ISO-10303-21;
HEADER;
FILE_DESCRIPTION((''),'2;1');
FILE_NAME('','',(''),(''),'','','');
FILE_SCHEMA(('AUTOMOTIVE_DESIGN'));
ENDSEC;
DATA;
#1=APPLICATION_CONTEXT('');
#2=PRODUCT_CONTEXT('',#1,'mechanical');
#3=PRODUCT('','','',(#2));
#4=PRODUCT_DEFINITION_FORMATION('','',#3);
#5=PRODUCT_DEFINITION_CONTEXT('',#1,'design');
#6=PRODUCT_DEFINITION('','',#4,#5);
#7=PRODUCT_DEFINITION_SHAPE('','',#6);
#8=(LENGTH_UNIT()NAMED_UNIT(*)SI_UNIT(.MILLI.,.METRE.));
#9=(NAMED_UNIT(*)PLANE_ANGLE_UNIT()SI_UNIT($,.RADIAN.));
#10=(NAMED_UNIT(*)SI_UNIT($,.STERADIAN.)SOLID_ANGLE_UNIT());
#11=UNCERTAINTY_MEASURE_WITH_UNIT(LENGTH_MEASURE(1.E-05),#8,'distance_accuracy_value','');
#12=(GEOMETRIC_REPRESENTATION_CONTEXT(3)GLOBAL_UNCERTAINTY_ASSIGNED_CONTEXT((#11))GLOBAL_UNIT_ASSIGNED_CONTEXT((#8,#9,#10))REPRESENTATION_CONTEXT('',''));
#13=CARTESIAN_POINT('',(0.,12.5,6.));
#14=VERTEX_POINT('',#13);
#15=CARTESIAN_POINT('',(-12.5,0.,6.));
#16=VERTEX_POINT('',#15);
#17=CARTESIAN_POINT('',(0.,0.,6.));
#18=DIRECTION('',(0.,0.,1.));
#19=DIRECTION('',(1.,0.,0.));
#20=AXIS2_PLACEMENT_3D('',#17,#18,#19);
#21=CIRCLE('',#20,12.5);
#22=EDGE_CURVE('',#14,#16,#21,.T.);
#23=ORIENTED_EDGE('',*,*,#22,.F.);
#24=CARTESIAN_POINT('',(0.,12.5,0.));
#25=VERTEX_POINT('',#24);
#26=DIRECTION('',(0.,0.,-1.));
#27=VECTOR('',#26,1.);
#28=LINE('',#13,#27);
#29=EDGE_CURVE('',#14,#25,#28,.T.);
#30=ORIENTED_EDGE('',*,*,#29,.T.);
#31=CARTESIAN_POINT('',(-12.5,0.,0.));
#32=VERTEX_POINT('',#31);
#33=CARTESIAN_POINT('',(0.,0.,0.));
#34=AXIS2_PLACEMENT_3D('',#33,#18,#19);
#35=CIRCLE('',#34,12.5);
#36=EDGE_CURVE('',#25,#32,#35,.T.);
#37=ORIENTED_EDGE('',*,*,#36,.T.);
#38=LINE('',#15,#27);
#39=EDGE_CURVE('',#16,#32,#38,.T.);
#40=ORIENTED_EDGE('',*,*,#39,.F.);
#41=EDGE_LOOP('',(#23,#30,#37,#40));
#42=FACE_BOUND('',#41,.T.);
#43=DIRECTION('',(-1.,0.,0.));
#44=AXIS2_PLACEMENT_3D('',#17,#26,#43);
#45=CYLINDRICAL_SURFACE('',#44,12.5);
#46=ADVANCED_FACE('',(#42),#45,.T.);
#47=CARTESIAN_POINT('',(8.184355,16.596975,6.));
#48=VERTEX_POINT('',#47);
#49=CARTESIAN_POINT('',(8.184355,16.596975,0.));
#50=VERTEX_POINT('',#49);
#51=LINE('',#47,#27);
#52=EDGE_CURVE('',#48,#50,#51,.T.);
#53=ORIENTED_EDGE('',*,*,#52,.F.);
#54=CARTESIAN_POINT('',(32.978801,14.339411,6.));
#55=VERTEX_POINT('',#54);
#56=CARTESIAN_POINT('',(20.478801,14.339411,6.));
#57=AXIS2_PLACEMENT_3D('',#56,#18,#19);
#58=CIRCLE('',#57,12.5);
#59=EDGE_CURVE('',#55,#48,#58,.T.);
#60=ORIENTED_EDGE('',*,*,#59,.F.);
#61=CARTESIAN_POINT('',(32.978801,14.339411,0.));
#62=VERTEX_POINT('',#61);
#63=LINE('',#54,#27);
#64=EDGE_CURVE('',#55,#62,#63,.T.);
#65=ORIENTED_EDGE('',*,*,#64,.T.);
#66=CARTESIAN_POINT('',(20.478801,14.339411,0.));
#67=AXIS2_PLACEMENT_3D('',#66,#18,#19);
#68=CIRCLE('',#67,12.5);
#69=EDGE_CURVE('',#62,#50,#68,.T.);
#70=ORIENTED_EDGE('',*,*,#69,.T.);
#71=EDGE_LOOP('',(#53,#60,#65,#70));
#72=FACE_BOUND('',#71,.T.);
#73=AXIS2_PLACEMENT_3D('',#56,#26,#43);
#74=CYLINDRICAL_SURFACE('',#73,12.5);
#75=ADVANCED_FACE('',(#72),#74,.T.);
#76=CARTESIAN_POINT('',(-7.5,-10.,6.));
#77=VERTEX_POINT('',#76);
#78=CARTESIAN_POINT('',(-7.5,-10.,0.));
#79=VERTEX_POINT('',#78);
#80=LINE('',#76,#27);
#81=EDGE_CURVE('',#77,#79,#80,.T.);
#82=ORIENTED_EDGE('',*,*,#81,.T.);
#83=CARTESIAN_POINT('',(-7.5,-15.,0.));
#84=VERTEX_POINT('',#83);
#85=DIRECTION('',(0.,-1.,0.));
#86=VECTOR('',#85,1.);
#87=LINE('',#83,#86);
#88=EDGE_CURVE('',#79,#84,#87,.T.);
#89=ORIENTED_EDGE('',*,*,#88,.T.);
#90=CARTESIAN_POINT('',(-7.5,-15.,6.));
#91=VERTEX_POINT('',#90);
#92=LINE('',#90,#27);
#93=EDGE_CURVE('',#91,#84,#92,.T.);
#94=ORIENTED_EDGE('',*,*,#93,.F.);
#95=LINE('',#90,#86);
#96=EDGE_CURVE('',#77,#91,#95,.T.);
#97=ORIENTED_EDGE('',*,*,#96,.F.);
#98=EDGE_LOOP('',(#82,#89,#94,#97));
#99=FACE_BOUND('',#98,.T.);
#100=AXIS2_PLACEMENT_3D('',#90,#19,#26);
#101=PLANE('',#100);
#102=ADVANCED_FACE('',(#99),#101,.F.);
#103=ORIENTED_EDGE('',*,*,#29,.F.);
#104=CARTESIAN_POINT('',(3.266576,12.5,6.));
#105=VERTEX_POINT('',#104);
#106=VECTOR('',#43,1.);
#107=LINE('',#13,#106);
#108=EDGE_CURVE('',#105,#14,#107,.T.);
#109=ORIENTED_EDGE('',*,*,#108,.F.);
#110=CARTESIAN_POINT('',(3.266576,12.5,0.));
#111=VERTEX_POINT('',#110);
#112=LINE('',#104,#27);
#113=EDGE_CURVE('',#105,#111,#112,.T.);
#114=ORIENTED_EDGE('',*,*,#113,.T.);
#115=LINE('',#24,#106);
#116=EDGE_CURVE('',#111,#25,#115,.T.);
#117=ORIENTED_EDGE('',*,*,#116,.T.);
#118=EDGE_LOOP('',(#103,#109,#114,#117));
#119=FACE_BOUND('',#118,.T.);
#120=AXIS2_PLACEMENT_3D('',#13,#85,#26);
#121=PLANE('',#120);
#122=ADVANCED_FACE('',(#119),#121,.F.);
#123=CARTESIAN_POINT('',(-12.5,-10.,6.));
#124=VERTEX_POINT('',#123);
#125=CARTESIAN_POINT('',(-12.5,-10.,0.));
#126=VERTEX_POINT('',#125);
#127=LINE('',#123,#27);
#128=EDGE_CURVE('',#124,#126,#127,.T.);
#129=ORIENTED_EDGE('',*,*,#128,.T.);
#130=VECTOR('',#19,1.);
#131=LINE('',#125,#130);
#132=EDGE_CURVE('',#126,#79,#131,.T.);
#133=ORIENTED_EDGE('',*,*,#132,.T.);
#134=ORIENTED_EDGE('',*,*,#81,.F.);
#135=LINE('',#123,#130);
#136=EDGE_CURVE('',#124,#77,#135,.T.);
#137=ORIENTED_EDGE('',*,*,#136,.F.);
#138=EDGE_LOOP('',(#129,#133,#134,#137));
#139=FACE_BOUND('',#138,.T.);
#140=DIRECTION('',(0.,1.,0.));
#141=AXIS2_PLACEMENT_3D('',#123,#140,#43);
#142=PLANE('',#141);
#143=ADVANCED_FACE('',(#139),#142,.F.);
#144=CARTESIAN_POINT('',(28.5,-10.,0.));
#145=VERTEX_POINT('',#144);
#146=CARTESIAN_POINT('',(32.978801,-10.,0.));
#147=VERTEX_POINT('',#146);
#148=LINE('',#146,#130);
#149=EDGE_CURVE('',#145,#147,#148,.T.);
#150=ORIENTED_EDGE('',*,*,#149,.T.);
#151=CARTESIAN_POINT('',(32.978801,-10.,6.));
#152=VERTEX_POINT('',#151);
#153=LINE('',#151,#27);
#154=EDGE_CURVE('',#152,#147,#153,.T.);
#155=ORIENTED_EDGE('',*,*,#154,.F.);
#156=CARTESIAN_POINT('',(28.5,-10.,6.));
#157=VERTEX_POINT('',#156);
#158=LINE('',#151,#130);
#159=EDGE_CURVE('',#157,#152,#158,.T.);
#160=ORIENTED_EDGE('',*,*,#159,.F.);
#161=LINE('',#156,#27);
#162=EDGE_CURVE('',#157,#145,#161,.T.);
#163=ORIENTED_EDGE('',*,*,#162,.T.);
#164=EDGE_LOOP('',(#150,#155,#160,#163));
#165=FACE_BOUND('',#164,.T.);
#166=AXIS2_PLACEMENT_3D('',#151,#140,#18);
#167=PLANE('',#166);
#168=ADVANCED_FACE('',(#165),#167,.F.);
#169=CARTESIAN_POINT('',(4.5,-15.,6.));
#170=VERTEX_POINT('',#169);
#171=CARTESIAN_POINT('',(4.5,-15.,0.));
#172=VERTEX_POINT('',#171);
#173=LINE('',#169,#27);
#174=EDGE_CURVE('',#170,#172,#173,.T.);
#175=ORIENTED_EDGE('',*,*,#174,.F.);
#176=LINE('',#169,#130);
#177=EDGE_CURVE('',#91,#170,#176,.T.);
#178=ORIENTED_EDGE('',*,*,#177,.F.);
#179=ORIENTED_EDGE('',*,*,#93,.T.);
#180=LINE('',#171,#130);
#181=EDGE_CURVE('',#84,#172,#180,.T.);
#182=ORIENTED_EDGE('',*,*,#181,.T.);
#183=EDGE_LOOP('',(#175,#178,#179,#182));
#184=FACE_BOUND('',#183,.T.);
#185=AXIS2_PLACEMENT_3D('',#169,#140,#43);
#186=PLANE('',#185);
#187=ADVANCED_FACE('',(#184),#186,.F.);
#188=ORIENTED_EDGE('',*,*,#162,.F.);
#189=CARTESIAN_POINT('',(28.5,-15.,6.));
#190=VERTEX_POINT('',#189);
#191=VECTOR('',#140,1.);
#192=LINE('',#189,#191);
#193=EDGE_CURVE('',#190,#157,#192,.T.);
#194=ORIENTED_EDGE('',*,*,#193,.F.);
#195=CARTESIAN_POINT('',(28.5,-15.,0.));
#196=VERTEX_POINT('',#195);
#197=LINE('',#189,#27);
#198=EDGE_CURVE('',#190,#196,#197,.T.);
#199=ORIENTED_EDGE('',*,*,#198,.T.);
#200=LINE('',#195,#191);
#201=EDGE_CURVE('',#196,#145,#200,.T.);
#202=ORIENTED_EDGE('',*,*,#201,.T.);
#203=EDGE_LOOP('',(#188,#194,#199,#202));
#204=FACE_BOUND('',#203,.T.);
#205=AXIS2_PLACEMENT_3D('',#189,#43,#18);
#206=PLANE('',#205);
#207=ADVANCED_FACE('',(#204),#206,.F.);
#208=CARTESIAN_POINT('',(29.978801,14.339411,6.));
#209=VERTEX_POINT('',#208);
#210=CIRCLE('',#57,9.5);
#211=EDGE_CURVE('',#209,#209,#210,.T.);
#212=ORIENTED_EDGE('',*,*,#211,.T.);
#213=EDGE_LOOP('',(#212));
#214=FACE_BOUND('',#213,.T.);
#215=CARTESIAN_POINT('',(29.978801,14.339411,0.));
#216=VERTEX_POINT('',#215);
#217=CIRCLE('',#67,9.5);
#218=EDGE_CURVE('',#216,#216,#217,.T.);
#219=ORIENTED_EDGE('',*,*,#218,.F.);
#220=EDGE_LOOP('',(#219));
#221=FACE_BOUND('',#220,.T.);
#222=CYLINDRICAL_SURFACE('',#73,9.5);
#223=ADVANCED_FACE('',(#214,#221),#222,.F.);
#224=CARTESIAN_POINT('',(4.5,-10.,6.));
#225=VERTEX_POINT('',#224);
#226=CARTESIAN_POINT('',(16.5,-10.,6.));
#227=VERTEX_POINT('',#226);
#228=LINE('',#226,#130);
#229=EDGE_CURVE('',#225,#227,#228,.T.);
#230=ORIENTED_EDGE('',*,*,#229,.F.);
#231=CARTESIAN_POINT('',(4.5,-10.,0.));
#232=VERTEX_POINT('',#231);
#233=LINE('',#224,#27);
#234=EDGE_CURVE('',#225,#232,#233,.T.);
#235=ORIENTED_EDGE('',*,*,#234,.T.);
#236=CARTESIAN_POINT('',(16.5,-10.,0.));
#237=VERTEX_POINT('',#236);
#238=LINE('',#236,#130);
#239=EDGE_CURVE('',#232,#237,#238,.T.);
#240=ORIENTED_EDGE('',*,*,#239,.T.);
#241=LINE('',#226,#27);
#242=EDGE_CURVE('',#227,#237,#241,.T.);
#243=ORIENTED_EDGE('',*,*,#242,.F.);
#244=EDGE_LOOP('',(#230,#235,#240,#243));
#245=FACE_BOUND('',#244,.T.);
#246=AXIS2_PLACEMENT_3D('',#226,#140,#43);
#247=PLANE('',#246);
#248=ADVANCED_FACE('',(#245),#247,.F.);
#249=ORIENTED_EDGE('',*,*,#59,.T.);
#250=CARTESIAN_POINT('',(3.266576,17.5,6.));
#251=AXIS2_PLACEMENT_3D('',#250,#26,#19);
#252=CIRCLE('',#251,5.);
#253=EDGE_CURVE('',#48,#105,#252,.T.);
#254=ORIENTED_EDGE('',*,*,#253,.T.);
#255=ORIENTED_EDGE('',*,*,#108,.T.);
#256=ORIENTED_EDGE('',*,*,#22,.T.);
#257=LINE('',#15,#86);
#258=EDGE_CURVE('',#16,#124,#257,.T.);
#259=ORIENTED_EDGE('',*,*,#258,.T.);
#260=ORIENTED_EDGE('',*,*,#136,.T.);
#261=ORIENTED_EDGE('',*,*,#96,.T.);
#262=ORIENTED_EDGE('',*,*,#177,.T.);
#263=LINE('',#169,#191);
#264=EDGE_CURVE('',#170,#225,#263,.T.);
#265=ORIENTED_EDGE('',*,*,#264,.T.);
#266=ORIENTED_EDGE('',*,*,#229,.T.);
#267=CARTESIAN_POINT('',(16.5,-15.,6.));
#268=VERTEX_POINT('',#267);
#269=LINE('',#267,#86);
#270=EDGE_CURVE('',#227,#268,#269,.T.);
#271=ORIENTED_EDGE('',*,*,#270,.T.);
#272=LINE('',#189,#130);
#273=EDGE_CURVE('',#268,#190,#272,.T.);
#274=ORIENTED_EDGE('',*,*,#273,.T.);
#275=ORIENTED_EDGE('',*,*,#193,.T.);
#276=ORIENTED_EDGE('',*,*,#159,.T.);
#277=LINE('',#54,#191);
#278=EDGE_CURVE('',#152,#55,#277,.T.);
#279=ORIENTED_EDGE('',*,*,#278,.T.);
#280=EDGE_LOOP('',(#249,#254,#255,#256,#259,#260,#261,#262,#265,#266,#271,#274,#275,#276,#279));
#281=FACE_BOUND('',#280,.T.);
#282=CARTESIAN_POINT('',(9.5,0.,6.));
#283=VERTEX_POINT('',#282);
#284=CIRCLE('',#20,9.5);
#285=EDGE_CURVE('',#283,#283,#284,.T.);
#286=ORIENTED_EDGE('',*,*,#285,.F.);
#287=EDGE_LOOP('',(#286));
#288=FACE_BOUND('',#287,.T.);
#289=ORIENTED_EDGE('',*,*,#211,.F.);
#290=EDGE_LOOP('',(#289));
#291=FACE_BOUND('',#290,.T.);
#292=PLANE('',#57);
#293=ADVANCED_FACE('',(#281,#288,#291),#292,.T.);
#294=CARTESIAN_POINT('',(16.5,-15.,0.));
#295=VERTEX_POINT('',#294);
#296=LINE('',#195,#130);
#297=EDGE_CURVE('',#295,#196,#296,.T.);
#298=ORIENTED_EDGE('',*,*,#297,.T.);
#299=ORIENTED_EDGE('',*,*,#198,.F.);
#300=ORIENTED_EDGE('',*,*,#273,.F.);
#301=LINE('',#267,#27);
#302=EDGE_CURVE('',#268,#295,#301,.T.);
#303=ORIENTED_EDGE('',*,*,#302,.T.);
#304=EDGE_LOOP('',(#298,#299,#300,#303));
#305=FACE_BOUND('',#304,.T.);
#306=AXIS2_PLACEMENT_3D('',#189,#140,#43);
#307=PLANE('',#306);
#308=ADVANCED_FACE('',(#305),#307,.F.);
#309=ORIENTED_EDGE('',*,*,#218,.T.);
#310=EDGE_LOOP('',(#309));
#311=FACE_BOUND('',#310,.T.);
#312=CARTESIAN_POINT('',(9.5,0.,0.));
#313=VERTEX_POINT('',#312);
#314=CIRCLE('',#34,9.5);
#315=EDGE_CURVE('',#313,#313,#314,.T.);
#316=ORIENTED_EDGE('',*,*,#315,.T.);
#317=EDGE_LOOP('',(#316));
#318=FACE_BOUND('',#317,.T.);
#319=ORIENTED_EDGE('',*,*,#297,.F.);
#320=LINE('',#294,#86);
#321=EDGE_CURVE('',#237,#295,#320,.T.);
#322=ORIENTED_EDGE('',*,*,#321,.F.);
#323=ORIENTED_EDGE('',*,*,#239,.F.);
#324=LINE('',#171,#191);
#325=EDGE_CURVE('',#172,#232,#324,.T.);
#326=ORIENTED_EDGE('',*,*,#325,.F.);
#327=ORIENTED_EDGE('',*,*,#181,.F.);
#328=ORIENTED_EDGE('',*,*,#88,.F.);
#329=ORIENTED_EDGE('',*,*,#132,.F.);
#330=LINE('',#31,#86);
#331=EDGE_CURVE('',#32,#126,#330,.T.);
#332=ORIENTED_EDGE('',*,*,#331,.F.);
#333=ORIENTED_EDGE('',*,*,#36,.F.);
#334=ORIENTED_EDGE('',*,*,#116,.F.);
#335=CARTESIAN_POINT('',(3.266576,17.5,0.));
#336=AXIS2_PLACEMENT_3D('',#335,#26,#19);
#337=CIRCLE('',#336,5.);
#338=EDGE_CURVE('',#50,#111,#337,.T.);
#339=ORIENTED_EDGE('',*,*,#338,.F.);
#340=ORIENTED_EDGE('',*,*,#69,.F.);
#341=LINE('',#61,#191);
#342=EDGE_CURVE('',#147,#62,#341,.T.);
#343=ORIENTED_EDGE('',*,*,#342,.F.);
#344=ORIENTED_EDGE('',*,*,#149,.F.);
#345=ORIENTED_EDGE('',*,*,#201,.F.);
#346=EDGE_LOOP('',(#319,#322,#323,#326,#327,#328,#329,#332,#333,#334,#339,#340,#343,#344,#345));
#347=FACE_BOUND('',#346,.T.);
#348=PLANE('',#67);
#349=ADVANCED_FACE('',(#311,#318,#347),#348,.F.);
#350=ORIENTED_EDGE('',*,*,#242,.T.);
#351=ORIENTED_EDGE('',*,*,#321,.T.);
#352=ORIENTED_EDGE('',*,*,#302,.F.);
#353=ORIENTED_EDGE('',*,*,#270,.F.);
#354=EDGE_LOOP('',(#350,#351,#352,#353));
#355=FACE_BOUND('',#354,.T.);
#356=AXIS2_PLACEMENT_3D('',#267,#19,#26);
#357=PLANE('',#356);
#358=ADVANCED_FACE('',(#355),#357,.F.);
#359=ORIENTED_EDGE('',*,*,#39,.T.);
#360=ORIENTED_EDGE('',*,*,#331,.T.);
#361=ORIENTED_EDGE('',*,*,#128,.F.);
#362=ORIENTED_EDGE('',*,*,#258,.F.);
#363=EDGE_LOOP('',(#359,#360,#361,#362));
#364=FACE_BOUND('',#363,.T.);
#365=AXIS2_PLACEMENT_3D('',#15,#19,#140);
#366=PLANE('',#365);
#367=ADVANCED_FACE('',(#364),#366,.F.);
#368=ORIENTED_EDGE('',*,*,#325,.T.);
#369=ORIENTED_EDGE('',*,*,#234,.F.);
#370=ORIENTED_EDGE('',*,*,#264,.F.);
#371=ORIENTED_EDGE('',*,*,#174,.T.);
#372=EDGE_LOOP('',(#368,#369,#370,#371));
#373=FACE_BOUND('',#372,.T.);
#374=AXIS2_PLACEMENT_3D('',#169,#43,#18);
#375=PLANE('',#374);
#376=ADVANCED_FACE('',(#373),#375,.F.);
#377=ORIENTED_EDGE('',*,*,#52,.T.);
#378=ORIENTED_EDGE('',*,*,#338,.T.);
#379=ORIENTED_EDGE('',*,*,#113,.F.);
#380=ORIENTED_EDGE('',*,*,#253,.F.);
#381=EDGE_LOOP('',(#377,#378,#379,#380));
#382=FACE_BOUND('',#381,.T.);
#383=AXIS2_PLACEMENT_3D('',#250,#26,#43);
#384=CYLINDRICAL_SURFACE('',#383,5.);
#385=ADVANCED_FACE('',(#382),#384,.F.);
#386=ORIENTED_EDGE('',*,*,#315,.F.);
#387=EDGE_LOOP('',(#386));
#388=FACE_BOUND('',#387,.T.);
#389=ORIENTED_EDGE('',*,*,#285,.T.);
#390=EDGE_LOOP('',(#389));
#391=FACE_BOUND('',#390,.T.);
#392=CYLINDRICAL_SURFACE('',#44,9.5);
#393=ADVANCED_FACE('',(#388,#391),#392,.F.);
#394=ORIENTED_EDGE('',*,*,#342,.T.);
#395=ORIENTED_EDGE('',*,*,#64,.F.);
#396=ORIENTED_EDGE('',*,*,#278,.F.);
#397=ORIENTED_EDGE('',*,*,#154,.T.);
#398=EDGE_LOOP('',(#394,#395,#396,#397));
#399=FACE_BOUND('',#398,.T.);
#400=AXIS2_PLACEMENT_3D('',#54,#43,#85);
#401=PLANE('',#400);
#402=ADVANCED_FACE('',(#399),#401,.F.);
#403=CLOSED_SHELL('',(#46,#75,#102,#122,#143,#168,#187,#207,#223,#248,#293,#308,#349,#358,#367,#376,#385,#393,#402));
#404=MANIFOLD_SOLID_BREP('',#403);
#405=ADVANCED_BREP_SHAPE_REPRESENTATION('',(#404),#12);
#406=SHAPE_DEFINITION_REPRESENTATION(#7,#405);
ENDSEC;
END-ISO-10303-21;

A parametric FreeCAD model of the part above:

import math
import FreeCAD as App
import Part
import Sketcher

V = App.Vector

doc = App.newDocument("Part")
body = doc.addObject("PartDesign::Body", "Body")

# Sketch on XY plane
sketch1 = doc.addObject("Sketcher::SketchObject", "Sketch")
body.addObject(sketch1)
sketch1.AttachmentSupport = (doc.XY_Plane, [""])
sketch1.MapMode = "FlatFace"
sketch1.addGeometry(Part.LineSegment(V(-12.5, 0, 0), V(-12.5, -10, 0)), False)
sketch1.addGeometry(Part.LineSegment(V(-12.5, -10, 0), V(-7.5, -10, 0)), False)
sketch1.addGeometry(Part.LineSegment(V(-7.5, -10, 0), V(-7.5, -15, 0)), False)
sketch1.addGeometry(Part.LineSegment(V(-7.5, -15, 0), V(4.5, -15, 0)), False)
sketch1.addGeometry(Part.LineSegment(V(4.5, -15, 0), V(4.5, -10, 0)), False)
sketch1.addGeometry(Part.LineSegment(V(4.5, -10, 0), V(16.5, -10, 0)), False)
sketch1.addGeometry(Part.LineSegment(V(16.5, -10, 0), V(16.5, -15, 0)), False)
sketch1.addGeometry(Part.LineSegment(V(16.5, -15, 0), V(28.5, -15, 0)), False)
sketch1.addGeometry(Part.LineSegment(V(28.5, -15, 0), V(28.5, -10, 0)), False)
sketch1.addGeometry(Part.LineSegment(V(28.5, -10, 0), V(32.978801, -10, 0)), False)
sketch1.addGeometry(Part.LineSegment(V(32.978801, -10, 0), V(32.978801, 14.339411, 0)), False)
sketch1.addGeometry(Part.ArcOfCircle(Part.Circle(V(20.478801, 14.339411, 0), V(0, 0, 1), 12.5), math.radians(0), math.radians(169.594993)), False)
sketch1.addGeometry(Part.ArcOfCircle(Part.Circle(V(3.266576, 17.5, 0), V(0, 0, 1), 5), math.radians(-90), math.radians(-10.405007)), False)
sketch1.addGeometry(Part.LineSegment(V(3.266576, 12.5, 0), V(0, 12.5, 0)), False)
sketch1.addGeometry(Part.ArcOfCircle(Part.Circle(V(0, 0, 0), V(0, 0, 1), 12.5), math.radians(90), math.radians(180)), False)
sketch1.addGeometry(Part.Circle(V(0, 0, 0), V(0, 0, 1), 9.5), False)
sketch1.addGeometry(Part.Circle(V(20.478801, 14.339411, 0), V(0, 0, 1), 9.5), False)
sketch1.addConstraint(Sketcher.Constraint("Coincident", 0, 2, 1, 1))
sketch1.addConstraint(Sketcher.Constraint("Coincident", 1, 2, 2, 1))
sketch1.addConstraint(Sketcher.Constraint("Coincident", 2, 2, 3, 1))
sketch1.addConstraint(Sketcher.Constraint("Coincident", 3, 2, 4, 1))
sketch1.addConstraint(Sketcher.Constraint("Coincident", 4, 2, 5, 1))
sketch1.addConstraint(Sketcher.Constraint("Coincident", 5, 2, 6, 1))
sketch1.addConstraint(Sketcher.Constraint("Coincident", 6, 2, 7, 1))
sketch1.addConstraint(Sketcher.Constraint("Coincident", 7, 2, 8, 1))
sketch1.addConstraint(Sketcher.Constraint("Coincident", 8, 2, 9, 1))
sketch1.addConstraint(Sketcher.Constraint("Coincident", 9, 2, 10, 1))
sketch1.addConstraint(Sketcher.Constraint("Tangent", 10, 2, 11, 1))
sketch1.addConstraint(Sketcher.Constraint("Tangent", 11, 2, 12, 2))
sketch1.addConstraint(Sketcher.Constraint("Tangent", 12, 1, 13, 1))
sketch1.addConstraint(Sketcher.Constraint("Tangent", 13, 2, 14, 1))
sketch1.addConstraint(Sketcher.Constraint("Tangent", 14, 2, 0, 1))
sketch1.addConstraint(Sketcher.Constraint("Vertical", 0))
sketch1.addConstraint(Sketcher.Constraint("Horizontal", 1))
sketch1.addConstraint(Sketcher.Constraint("Vertical", 2))
sketch1.addConstraint(Sketcher.Constraint("Horizontal", 3))
sketch1.addConstraint(Sketcher.Constraint("Vertical", 4))
sketch1.addConstraint(Sketcher.Constraint("Horizontal", 5))
sketch1.addConstraint(Sketcher.Constraint("Vertical", 6))
sketch1.addConstraint(Sketcher.Constraint("Horizontal", 7))
sketch1.addConstraint(Sketcher.Constraint("Vertical", 8))
sketch1.addConstraint(Sketcher.Constraint("Horizontal", 9))
sketch1.addConstraint(Sketcher.Constraint("Vertical", 10))
sketch1.addConstraint(Sketcher.Constraint("Horizontal", 13))
sketch1.addConstraint(Sketcher.Constraint("Coincident", 14, 3, -1, 1))
sketch1.addConstraint(Sketcher.Constraint("Coincident", 15, 3, -1, 1))
sketch1.addConstraint(Sketcher.Constraint("Coincident", 16, 3, 11, 3))
sketch1.addConstraint(Sketcher.Constraint("Equal", 11, 14))
sketch1.addConstraint(Sketcher.Constraint("Equal", 15, 16))
sketch1.addConstraint(Sketcher.Constraint("Horizontal", 1, 2, 4, 2))
sketch1.addConstraint(Sketcher.Constraint("Horizontal", 3, 2, 6, 2))
sketch1.addConstraint(Sketcher.Constraint("Horizontal", 5, 2, 8, 2))
sketch1.addConstraint(Sketcher.Constraint("Equal", 3, 5))
sketch1.addConstraint(Sketcher.Constraint("Equal", 5, 7))
sketch1.addConstraint(Sketcher.Constraint("Equal", 1, 2))
sketch1.addConstraint(Sketcher.Constraint("Diameter", 15, 19.0))
sketch1.addConstraint(Sketcher.Constraint("Radius", 12, 5.0))
sketch1.addConstraint(Sketcher.Constraint("Radius", 11, 12.5))
sketch1.addConstraint(Sketcher.Constraint("DistanceX", 1, 1, 1, 2, 5.0))
sketch1.addConstraint(Sketcher.Constraint("DistanceX", 3, 1, 3, 2, 12.0))
sketch1.addConstraint(Sketcher.Constraint("DistanceY", 0, 2, 0, 1, 10.0))
sketch1.addConstraint(Sketcher.Constraint("DistanceX", 9, 1, 9, 2, 4.478801))
sketch1.addConstraint(Sketcher.Constraint("DistanceY", 10, 1, 10, 2, 24.339411))
pad1 = doc.addObject("PartDesign::Pad", "Pad")
body.addObject(pad1)
pad1.Profile = sketch1
pad1.Length = 6

doc.recompute()
